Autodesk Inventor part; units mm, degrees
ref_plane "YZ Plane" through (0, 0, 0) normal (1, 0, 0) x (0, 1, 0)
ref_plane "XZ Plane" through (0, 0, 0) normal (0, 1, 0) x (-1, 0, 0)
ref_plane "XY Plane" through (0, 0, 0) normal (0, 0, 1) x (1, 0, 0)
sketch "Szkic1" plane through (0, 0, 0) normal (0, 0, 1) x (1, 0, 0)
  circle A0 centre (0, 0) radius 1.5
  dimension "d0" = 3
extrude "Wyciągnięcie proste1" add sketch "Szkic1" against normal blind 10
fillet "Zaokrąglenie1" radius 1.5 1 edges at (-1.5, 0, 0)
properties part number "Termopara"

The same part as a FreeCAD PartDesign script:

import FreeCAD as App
import Part
import Sketcher


def edges_at(feature, points):
    """Names of the edges that pass closest to the given points."""
    edges = feature.Shape.Edges
    near = lambda p: min(range(len(edges)), key=lambda i: edges[i].distToShape(Part.Vertex(*p))[0])
    return sorted({f"Edge{near(p) + 1}" for p in points})

doc = App.newDocument("Part")
body = doc.addObject("PartDesign::Body", "Body")

# Sketch on XY plane
sketch1 = doc.addObject("Sketcher::SketchObject", "Sketch")
body.addObject(sketch1)
sketch1.AttachmentSupport = (doc.XY_Plane, [""])
sketch1.MapMode = "FlatFace"
sketch1.addGeometry(Part.Circle(App.Vector(0, 0, 0), App.Vector(0, 0, 1), 1.5), False)
sketch1.addConstraint([
    Sketcher.Constraint("Coincident", 0, 3, -1, 1),
    Sketcher.Constraint("Diameter", 0, 3.0),
])
pad1 = doc.addObject("PartDesign::Pad", "Pad")
body.addObject(pad1)
pad1.Profile = sketch1
pad1.Length = 10
pad1.Reversed = True
doc.recompute()

fillet = doc.addObject("PartDesign::Fillet", "Fillet")
body.addObject(fillet)
fillet.Base = (pad1, edges_at(pad1, [(-1.5, 0, 0)]))
fillet.Radius = 1.5

doc.recompute()
